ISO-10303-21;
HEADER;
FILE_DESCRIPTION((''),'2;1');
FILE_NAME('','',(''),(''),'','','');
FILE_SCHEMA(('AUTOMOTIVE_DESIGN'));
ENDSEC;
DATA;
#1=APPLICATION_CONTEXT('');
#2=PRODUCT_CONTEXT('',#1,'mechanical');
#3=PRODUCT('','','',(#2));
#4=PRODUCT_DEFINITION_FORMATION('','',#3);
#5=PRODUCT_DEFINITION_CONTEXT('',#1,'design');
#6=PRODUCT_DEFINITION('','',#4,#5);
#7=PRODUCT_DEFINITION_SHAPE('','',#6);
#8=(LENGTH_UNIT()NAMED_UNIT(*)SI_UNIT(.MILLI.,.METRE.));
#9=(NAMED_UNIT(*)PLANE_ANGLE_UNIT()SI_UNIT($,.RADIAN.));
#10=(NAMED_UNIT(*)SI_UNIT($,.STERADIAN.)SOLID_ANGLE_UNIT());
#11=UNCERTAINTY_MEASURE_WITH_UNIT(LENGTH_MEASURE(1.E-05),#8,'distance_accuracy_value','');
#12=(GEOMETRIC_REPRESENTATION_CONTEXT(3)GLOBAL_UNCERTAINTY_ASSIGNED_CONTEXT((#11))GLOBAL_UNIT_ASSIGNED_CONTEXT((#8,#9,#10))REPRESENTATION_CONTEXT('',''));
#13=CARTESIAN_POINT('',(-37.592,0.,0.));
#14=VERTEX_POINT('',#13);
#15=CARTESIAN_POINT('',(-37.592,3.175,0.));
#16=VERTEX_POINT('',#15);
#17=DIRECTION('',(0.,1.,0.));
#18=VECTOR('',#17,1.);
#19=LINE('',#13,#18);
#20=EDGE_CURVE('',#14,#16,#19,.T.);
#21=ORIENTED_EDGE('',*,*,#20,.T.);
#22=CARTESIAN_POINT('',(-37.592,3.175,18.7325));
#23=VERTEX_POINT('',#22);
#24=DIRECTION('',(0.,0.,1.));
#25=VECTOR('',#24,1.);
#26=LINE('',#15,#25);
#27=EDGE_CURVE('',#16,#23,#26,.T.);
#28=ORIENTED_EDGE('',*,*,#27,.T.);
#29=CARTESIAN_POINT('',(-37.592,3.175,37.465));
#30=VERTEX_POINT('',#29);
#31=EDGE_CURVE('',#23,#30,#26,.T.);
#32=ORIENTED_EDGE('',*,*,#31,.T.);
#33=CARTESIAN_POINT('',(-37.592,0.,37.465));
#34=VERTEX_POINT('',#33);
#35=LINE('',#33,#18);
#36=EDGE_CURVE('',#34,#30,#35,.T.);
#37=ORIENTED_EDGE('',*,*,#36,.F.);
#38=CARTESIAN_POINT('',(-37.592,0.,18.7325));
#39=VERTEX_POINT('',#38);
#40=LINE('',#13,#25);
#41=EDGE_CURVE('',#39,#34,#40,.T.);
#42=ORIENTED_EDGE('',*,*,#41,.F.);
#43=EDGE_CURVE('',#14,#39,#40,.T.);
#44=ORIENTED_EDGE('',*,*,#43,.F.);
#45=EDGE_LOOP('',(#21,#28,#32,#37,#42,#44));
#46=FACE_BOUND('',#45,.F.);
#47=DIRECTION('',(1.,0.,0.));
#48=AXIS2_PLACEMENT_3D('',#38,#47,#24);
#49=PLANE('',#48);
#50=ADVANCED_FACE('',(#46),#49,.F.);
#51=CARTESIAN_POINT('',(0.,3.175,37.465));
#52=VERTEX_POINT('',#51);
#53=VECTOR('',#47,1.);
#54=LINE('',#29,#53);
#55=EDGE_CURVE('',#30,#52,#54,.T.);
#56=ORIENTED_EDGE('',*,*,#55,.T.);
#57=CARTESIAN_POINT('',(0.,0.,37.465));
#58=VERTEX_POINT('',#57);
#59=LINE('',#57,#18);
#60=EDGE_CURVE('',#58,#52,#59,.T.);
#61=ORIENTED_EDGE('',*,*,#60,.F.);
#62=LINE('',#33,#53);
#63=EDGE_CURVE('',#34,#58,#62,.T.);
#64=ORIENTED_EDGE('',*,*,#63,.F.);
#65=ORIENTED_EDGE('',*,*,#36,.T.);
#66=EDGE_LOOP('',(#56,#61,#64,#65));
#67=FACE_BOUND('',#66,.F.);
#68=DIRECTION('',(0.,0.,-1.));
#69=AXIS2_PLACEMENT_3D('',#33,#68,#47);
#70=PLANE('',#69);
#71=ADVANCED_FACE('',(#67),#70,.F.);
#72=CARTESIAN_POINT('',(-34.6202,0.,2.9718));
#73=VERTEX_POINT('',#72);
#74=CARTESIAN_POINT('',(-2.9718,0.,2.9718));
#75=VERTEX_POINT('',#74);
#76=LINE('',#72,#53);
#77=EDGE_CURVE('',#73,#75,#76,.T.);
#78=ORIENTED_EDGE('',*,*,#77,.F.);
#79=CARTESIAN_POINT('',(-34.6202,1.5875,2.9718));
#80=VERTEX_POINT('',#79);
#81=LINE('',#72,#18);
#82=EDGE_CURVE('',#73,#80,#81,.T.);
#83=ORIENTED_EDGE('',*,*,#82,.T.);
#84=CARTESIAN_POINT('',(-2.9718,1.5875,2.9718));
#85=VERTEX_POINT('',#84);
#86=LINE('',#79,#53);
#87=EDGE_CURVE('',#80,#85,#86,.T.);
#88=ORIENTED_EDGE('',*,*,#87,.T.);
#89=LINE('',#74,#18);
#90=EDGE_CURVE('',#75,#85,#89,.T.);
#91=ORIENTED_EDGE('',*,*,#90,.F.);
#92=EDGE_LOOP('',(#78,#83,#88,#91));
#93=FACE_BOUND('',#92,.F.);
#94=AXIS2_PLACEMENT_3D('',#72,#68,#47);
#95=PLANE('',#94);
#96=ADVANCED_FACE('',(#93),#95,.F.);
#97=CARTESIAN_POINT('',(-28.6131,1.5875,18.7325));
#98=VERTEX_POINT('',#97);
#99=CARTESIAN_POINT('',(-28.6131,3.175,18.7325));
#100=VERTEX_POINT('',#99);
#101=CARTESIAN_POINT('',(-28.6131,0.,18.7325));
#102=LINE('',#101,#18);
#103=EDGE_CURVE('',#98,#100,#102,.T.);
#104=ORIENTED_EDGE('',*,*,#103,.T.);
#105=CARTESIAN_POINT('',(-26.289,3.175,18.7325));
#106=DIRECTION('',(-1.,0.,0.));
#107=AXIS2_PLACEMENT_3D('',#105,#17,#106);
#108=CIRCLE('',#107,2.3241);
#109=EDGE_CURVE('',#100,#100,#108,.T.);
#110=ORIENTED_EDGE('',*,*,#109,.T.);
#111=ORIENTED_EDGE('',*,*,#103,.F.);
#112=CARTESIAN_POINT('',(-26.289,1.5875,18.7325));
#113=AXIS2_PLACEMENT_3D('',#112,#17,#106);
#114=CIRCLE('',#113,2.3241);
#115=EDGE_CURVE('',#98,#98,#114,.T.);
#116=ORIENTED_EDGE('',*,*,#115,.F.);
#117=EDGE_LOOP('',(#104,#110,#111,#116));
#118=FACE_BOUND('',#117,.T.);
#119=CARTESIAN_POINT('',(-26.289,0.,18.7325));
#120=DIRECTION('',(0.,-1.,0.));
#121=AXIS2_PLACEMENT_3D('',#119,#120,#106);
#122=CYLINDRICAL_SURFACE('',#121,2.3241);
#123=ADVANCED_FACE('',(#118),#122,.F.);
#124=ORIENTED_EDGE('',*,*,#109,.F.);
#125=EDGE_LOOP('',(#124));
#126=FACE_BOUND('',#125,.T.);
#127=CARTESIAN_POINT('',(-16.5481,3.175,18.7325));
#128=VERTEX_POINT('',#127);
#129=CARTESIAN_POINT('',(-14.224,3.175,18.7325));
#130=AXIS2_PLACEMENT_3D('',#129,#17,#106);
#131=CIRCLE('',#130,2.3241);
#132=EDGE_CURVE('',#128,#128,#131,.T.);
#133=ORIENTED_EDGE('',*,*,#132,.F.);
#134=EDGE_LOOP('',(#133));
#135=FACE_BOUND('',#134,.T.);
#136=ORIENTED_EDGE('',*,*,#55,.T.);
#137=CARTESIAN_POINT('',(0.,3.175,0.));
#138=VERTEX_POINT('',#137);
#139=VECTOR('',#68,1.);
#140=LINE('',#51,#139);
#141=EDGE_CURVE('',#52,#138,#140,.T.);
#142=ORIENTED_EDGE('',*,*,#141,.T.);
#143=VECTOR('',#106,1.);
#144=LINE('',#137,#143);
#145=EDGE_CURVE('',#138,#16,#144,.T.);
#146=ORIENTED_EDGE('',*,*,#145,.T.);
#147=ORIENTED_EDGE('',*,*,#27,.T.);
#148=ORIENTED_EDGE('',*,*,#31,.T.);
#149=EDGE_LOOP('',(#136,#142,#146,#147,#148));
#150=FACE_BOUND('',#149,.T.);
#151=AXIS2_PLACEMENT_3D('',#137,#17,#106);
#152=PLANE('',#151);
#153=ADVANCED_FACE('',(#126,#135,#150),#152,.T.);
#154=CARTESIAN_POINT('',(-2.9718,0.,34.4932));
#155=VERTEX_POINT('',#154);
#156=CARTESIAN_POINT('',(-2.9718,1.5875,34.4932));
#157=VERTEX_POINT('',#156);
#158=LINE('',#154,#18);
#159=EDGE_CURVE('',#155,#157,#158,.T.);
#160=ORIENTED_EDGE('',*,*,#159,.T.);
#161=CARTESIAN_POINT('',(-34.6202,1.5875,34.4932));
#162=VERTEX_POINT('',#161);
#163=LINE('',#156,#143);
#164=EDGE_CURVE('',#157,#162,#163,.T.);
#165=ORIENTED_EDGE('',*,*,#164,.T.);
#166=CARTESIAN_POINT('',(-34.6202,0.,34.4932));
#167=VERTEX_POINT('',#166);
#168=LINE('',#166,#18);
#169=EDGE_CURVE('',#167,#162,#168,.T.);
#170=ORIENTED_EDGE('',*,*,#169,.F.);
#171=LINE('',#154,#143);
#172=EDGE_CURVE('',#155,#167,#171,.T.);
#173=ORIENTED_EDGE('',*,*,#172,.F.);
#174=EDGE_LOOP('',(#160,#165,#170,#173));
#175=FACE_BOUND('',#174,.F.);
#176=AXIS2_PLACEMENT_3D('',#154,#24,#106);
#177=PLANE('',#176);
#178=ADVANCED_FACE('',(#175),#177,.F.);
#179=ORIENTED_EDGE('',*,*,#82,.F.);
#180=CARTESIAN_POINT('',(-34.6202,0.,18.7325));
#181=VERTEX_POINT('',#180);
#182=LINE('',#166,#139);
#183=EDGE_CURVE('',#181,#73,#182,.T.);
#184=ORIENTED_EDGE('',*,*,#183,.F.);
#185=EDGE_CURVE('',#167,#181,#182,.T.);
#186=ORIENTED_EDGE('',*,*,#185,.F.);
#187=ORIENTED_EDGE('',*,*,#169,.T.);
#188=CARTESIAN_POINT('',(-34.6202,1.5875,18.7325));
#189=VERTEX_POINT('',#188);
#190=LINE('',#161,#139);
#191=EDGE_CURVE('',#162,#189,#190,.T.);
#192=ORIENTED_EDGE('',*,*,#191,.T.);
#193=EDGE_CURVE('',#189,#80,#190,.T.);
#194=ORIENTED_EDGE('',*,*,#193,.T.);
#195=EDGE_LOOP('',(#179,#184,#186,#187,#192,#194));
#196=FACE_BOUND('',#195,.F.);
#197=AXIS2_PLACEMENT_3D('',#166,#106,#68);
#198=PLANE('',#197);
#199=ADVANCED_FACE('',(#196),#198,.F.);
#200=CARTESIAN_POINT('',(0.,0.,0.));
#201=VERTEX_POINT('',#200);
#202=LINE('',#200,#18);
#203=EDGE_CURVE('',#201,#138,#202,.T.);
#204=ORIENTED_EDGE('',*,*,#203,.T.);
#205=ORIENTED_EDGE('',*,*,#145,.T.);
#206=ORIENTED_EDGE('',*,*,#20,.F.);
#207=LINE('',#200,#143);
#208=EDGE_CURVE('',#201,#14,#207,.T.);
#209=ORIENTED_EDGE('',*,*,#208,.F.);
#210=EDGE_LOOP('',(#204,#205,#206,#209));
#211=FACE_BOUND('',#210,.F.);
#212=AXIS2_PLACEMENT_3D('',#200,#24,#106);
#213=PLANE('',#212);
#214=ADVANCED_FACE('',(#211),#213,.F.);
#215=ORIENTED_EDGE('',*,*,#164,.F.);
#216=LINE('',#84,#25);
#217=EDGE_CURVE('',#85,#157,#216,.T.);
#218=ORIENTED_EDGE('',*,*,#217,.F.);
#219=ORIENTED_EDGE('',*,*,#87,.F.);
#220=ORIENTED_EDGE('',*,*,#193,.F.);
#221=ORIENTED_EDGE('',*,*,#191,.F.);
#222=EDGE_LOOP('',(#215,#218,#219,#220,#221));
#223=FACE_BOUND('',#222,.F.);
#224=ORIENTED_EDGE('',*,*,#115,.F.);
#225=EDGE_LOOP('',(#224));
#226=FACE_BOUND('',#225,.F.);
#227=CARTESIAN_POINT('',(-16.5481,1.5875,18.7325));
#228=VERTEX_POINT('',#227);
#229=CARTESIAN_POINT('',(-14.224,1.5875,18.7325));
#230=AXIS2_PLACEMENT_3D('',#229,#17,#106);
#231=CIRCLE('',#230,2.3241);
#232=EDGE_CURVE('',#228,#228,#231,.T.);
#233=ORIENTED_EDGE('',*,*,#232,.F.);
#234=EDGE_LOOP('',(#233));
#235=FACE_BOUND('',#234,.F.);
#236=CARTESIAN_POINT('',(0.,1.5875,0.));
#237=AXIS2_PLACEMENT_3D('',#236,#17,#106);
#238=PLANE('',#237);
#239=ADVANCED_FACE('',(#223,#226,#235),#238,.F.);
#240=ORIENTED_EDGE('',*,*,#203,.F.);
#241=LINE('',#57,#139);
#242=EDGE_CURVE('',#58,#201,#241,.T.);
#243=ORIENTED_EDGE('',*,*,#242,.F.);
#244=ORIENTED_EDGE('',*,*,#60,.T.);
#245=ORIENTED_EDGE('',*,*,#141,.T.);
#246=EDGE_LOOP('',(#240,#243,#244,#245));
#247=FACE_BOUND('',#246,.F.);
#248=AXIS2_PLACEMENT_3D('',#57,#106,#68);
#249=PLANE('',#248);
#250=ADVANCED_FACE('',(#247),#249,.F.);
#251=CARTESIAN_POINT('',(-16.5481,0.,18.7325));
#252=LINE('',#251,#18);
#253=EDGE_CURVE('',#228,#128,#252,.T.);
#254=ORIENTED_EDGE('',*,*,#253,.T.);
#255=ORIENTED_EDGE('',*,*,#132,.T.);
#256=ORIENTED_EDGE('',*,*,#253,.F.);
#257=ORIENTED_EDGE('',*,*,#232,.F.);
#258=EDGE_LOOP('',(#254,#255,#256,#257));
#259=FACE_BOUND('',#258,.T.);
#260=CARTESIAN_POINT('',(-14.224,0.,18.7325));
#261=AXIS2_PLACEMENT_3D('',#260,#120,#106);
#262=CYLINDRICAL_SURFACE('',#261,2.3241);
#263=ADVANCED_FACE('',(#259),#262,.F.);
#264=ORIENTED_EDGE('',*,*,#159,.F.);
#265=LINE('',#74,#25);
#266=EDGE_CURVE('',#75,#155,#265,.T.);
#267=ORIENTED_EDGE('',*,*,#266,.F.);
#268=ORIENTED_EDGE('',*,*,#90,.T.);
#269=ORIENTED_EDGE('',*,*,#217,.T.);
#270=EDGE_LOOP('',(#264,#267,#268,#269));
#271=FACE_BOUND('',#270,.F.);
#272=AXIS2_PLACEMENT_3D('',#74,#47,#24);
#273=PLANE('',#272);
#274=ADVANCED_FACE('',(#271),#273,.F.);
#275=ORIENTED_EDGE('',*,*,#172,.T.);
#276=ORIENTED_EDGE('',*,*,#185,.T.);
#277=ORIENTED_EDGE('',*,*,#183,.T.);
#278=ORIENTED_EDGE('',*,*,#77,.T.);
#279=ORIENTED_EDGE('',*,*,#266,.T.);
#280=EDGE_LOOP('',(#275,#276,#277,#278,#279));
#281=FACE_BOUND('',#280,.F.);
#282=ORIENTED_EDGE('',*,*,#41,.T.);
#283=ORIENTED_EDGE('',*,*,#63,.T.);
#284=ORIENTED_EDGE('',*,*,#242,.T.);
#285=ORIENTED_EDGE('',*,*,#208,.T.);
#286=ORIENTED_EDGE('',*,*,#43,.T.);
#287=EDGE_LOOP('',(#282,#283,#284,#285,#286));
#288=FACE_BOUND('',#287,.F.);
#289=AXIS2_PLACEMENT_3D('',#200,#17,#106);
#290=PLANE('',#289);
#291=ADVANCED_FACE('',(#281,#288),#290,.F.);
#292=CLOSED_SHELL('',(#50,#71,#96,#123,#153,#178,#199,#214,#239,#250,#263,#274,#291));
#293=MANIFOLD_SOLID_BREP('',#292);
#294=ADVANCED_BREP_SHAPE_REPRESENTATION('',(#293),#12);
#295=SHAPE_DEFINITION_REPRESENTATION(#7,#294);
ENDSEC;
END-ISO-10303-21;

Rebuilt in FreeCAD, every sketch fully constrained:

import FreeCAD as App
import Part
import Sketcher

V = App.Vector
Q = App.Units.Quantity

doc = App.newDocument("Part")
body = doc.addObject("PartDesign::Body", "Body")

# Sketch on XZ plane
sketch1 = body.newObject("Sketcher::SketchObject", "Sketch")
sketch1.AttachmentSupport = (doc.getObject("XZ_Plane"), [""])
sketch1.MapMode = "FlatFace"
sketch1.addGeometry(Part.LineSegment(V(0, 37.5, 0), V(0, 0, 0)), False)
sketch1.addGeometry(Part.LineSegment(V(0, 0, 0), V(-37.6, 0, 0)), False)
sketch1.addGeometry(Part.LineSegment(V(-37.6, 0, 0), V(-37.6, 18.7, 0)), False)
sketch1.addGeometry(Part.LineSegment(V(-37.6, 18.7, 0), V(-37.6, 37.5, 0)), False)
sketch1.addGeometry(Part.LineSegment(V(-37.6, 37.5, 0), V(0, 37.5, 0)), False)
sketch1.addGeometry(Part.Circle(V(-14.2, 18.7, 0), V(0, 0, 1), 2.3), False)
sketch1.addGeometry(Part.Circle(V(-26.3, 18.7, 0), V(0, 0, 1), 2.3), False)
sketch1.addConstraint(Sketcher.Constraint("Coincident", 0, 2, 1, 1))
sketch1.addConstraint(Sketcher.Constraint("Coincident", 1, 2, 2, 1))
sketch1.addConstraint(Sketcher.Constraint("Coincident", 2, 2, 3, 1))
sketch1.addConstraint(Sketcher.Constraint("Coincident", 3, 2, 4, 1))
sketch1.addConstraint(Sketcher.Constraint("Coincident", 4, 2, 0, 1))
sketch1.addConstraint(Sketcher.Constraint("Vertical", 0))
sketch1.addConstraint(Sketcher.Constraint("Horizontal", 1))
sketch1.addConstraint(Sketcher.Constraint("Vertical", 2))
sketch1.addConstraint(Sketcher.Constraint("Vertical", 3))
sketch1.addConstraint(Sketcher.Constraint("Horizontal", 4))
sketch1.addConstraint(Sketcher.Constraint("Coincident", 0, 2, -1, 1))
sketch1.addConstraint(Sketcher.Constraint("Equal", 5, 6))
sketch1.addConstraint(Sketcher.Constraint("Horizontal", 5, 3, 6, 3))
sketch1.addConstraint(Sketcher.Constraint("Horizontal", 6, 3, 2, 2))
sketch1.addConstraint(Sketcher.Constraint("Equal", 2, 3))
sketch1.addConstraint(Sketcher.Constraint("Diameter", 5, Q("0.183 in")))
sketch1.addConstraint(Sketcher.Constraint("DistanceX", 1, 2, 1, 1, Q("1.48 in")))
sketch1.addConstraint(Sketcher.Constraint("DistanceY", 0, 2, 0, 1, Q("1.475 in")))
sketch1.addConstraint(Sketcher.Constraint("DistanceX", 6, 3, 5, 3, Q("0.475 in")))
sketch1.addConstraint(Sketcher.Constraint("DistanceX", 1, 2, 6, 3, Q("0.445 in")))
pad1 = body.newObject("PartDesign::Pad", "Pad")
pad1.Profile = sketch1
pad1.Length = Q("0.125 in")
pad1.Reversed = True

# Sketch on XZ plane
sketch2 = body.newObject("Sketcher::SketchObject", "Sketch001")
sketch2.AttachmentSupport = (doc.getObject("XZ_Plane"), [""])
sketch2.MapMode = "FlatFace"
sketch2.addGeometry(Part.LineSegment(V(-34.6, 3, 0), V(-34.6, 18.7, 0)), False)
sketch2.addGeometry(Part.LineSegment(V(-34.6, 18.7, 0), V(-34.6, 34.5, 0)), False)
sketch2.addGeometry(Part.LineSegment(V(-34.6, 34.5, 0), V(-3, 34.5, 0)), False)
sketch2.addGeometry(Part.LineSegment(V(-3, 34.5, 0), V(-3, 3, 0)), False)
sketch2.addGeometry(Part.LineSegment(V(-3, 3, 0), V(-34.6, 3, 0)), False)
sketch2.addGeometry(Part.Circle(V(-14.2, 18.7, 0), V(0, 0, 1), 2.3), False)
sketch2.addGeometry(Part.Circle(V(-26.3, 18.7, 0), V(0, 0, 1), 2.3), False)
sketch2.addConstraint(Sketcher.Constraint("Coincident", 0, 2, 1, 1))
sketch2.addConstraint(Sketcher.Constraint("Coincident", 1, 2, 2, 1))
sketch2.addConstraint(Sketcher.Constraint("Coincident", 2, 2, 3, 1))
sketch2.addConstraint(Sketcher.Constraint("Coincident", 3, 2, 4, 1))
sketch2.addConstraint(Sketcher.Constraint("Coincident", 4, 2, 0, 1))
sketch2.addConstraint(Sketcher.Constraint("Vertical", 0))
sketch2.addConstraint(Sketcher.Constraint("Vertical", 1))
sketch2.addConstraint(Sketcher.Constraint("Horizontal", 2))
sketch2.addConstraint(Sketcher.Constraint("Vertical", 3))
sketch2.addConstraint(Sketcher.Constraint("Horizontal", 4))
sketch2.addConstraint(Sketcher.Constraint("Equal", 5, 6))
sketch2.addConstraint(Sketcher.Constraint("Horizontal", 5, 3, 6, 3))
sketch2.addConstraint(Sketcher.Constraint("Horizontal", 6, 3, 0, 2))
sketch2.addConstraint(Sketcher.Constraint("Equal", 0, 1))
sketch2.addConstraint(Sketcher.Constraint("Diameter", 5, Q("0.183 in")))
sketch2.addConstraint(Sketcher.Constraint("DistanceX", 2, 2, -1, 1, Q("0.117 in")))
sketch2.addConstraint(Sketcher.Constraint("DistanceY", -1, 1, 3, 2, Q("0.117 in")))
sketch2.addConstraint(Sketcher.Constraint("DistanceX", 6, 3, 5, 3, Q("0.475 in")))
sketch2.addConstraint(Sketcher.Constraint("DistanceX", 2, 1, 2, 2, Q("1.246 in")))
sketch2.addConstraint(Sketcher.Constraint("DistanceY", 3, 2, 3, 1, Q("1.241 in")))
sketch2.addConstraint(Sketcher.Constraint("DistanceX", 5, 3, -1, 1, Q("0.56 in")))
pocket1 = body.newObject("PartDesign::Pocket", "Pocket")
pocket1.Profile = sketch2
pocket1.Length = Q("0.0625 in")

doc.recompute()
